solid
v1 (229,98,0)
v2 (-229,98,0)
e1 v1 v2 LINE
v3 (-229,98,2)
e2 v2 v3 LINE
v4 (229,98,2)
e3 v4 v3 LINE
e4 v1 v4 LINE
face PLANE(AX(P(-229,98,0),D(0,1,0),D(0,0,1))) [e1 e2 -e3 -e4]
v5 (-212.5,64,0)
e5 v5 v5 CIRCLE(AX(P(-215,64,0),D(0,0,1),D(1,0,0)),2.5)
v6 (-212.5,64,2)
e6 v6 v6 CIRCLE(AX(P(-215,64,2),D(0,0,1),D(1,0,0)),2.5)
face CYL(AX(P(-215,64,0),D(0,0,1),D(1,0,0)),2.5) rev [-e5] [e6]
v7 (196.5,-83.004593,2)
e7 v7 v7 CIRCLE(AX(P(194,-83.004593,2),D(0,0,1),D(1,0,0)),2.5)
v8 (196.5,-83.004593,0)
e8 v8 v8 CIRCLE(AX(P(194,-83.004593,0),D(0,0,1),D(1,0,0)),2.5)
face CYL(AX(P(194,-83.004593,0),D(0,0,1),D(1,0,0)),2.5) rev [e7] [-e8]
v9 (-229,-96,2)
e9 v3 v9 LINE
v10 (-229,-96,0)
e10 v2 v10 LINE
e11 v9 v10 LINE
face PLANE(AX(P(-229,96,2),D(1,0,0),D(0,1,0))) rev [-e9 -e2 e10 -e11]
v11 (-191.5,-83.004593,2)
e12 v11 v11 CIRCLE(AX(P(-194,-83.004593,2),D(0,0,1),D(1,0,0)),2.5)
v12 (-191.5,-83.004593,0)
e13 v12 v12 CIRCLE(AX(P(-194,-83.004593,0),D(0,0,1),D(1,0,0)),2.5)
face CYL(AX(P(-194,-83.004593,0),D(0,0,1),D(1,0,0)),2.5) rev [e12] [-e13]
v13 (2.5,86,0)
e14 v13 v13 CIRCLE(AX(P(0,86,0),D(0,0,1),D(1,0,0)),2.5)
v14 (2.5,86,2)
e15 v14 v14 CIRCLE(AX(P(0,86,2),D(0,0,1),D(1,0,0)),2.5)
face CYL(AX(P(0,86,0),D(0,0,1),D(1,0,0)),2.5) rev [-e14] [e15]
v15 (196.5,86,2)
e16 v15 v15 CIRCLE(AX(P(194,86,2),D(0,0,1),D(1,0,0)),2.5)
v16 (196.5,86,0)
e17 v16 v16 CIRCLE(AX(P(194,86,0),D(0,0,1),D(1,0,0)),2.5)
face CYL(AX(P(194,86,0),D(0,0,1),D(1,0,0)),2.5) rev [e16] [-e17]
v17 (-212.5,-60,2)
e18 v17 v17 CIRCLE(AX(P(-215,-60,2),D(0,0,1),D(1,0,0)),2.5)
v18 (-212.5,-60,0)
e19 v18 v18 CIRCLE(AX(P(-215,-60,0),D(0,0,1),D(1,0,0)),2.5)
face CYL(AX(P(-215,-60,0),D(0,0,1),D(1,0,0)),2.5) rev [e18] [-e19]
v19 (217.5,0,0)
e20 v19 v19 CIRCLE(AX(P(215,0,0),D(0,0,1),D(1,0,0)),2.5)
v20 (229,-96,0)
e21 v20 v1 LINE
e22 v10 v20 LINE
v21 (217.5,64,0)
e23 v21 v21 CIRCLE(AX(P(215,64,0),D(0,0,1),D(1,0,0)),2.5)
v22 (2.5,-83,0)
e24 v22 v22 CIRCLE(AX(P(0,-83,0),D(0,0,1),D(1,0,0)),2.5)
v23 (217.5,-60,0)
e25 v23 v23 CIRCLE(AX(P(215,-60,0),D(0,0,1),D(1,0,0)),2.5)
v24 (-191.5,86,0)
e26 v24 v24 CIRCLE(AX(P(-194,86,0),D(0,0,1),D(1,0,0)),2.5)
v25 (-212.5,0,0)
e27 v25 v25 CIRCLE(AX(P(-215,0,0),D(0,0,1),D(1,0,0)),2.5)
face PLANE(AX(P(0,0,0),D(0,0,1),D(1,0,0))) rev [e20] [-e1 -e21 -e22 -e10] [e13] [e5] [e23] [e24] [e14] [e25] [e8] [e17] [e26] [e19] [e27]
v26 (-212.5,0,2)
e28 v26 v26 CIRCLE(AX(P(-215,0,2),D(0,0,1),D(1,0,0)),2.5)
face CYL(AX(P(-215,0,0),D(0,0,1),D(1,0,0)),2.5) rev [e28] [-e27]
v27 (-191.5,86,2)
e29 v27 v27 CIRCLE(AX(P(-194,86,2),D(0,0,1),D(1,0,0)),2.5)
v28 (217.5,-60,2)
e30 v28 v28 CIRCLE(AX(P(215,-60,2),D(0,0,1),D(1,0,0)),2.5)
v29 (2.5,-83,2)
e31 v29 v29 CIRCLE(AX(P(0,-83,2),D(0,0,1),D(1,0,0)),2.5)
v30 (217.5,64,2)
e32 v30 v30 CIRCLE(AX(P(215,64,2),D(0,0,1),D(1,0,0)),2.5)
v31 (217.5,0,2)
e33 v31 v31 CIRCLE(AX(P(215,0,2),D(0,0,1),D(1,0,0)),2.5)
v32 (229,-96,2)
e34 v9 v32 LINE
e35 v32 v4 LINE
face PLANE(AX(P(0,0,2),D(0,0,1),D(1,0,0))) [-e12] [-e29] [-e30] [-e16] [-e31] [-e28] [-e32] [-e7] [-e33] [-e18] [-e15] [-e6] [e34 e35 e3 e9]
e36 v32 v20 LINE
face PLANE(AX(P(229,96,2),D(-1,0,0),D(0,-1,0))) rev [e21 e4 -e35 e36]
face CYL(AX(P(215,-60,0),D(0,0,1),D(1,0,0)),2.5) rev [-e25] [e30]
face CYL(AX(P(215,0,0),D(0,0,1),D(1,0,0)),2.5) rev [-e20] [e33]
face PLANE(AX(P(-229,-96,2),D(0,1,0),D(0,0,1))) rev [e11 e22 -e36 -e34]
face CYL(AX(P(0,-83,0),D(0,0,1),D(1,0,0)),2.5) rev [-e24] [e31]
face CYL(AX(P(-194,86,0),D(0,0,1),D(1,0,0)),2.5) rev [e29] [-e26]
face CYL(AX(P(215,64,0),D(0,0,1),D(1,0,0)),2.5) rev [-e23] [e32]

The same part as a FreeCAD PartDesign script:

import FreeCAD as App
import Part
import Sketcher
from FreeCAD import Vector
Q = App.Units.Quantity


def add_polygon(sketch, points):
    """Adds a closed chain of lines whose ends are joined by coincident constraints."""
    first, n = sketch.GeometryCount, len(points)
    for a, b in zip(points, points[1:] + points[:1]):
        sketch.addGeometry(Part.LineSegment(App.Vector(*a, 0), App.Vector(*b, 0)), False)
    for i in range(n):
        sketch.addConstraint(Sketcher.Constraint("Coincident", first + i, 2, first + (i + 1) % n, 1))

doc = App.newDocument("Part")
body = doc.addObject("PartDesign::Body", "Body")

sketch1 = doc.addObject("Sketcher::SketchObject", "Sketch")
body.addObject(sketch1)
sketch1.AttachmentSupport = (doc.XY_Plane, [""])
sketch1.MapMode = "FlatFace"
add_polygon(sketch1, [(-229, 96), (-229, -96), (229, -96), (229, 96)])
sketch1.addConstraint(Sketcher.Constraint("Vertical", 0))
sketch1.addConstraint(Sketcher.Constraint("Horizontal", 1))
sketch1.addConstraint(Sketcher.Constraint("Vertical", 2))
sketch1.addConstraint(Sketcher.Constraint("Horizontal", 3))
sketch1.addConstraint(Sketcher.Constraint("Symmetric", 0, 2, 2, 2, -1, 1))
sketch1.addConstraint(Sketcher.Constraint("DistanceX", 1, 1, 1, 2, Q("458 mm")))
sketch1.addConstraint(Sketcher.Constraint("DistanceY", 0, 2, 0, 1, Q("192 mm")))
pad1 = doc.addObject("PartDesign::Pad", "Pad")
body.addObject(pad1)
pad1.Profile = sketch1
pad1.Length = 2

sketch2 = doc.addObject("Sketcher::SketchObject", "Sketch001")
body.addObject(sketch2)
sketch2.AttachmentSupport = (doc.XY_Plane, [""])
sketch2.MapMode = "FlatFace"
sketch2.AttachmentOffset = App.Placement(Vector(0, 0, 2), App.Rotation())
sketch2.addGeometry(Part.Circle(Vector(-194, 86, 0), Vector(0, 0, 1), 2.5), False)
sketch2.addGeometry(Part.Circle(Vector(-194, -83, 0), Vector(0, 0, 1), 2.5), False)
sketch2.addGeometry(Part.Circle(Vector(194, -83, 0), Vector(0, 0, 1), 2.5), False)
sketch2.addGeometry(Part.Circle(Vector(194, 86, 0), Vector(0, 0, 1), 2.5), False)
sketch2.addGeometry(Part.Circle(Vector(-215, 0, 0), Vector(0, 0, 1), 2.5), False)
sketch2.addGeometry(Part.Circle(Vector(-215, -60, 0), Vector(0, 0, 1), 2.5), False)
sketch2.addGeometry(Part.Circle(Vector(-215, 64, 0), Vector(0, 0, 1), 2.5), False)
sketch2.addGeometry(Part.Circle(Vector(215, 0, 0), Vector(0, 0, 1), 2.5), False)
sketch2.addGeometry(Part.Circle(Vector(215, -60, 0), Vector(0, 0, 1), 2.5), False)
sketch2.addGeometry(Part.Circle(Vector(215, 64, 0), Vector(0, 0, 1), 2.5), False)
sketch2.addGeometry(Part.Circle(Vector(0, 86, 0), Vector(0, 0, 1), 2.5), False)
sketch2.addGeometry(Part.Circle(Vector(0, -83, 0), Vector(0, 0, 1), 2.5), False)
sketch2.addConstraint(Sketcher.Constraint("Equal", 0, 1))
sketch2.addConstraint(Sketcher.Constraint("Equal", 1, 2))
sketch2.addConstraint(Sketcher.Constraint("Equal", 2, 3))
sketch2.addConstraint(Sketcher.Constraint("Equal", 3, 4))
sketch2.addConstraint(Sketcher.Constraint("Equal", 4, 5))
sketch2.addConstraint(Sketcher.Constraint("Equal", 5, 6))
sketch2.addConstraint(Sketcher.Constraint("Equal", 6, 7))
sketch2.addConstraint(Sketcher.Constraint("Equal", 7, 8))
sketch2.addConstraint(Sketcher.Constraint("Equal", 8, 9))
sketch2.addConstraint(Sketcher.Constraint("Equal", 9, 10))
sketch2.addConstraint(Sketcher.Constraint("Equal", 10, 11))
sketch2.addConstraint(Sketcher.Constraint("Symmetric", 4, 3, 7, 3, -1, 1))
sketch2.addConstraint(Sketcher.Constraint("Symmetric", 1, 3, 2, 3, -2))
sketch2.addConstraint(Sketcher.Constraint("Symmetric", 0, 3, 3, 3, -2))
sketch2.addConstraint(Sketcher.Constraint("Symmetric", 5, 3, 8, 3, -2))
sketch2.addConstraint(Sketcher.Constraint("Symmetric", 6, 3, 9, 3, -2))
sketch2.addConstraint(Sketcher.Constraint("PointOnObject", 4, 3, -1))
sketch2.addConstraint(Sketcher.Constraint("PointOnObject", 10, 3, -2))
sketch2.addConstraint(Sketcher.Constraint("PointOnObject", 11, 3, -2))
sketch2.addConstraint(Sketcher.Constraint("Horizontal", 3, 3, 10, 3))
sketch2.addConstraint(Sketcher.Constraint("Vertical", 0, 3, 1, 3))
sketch2.addConstraint(Sketcher.Constraint("Vertical", 4, 3, 5, 3))
sketch2.addConstraint(Sketcher.Constraint("Vertical", 5, 3, 6, 3))
sketch2.addConstraint(Sketcher.Constraint("Diameter", 0, Q("5 mm")))
sketch2.addConstraint(Sketcher.Constraint("DistanceX", 0, 3, -1, 1, Q("194 mm")))
sketch2.addConstraint(Sketcher.Constraint("DistanceY", -1, 1, 0, 3, Q("86 mm")))
sketch2.addConstraint(Sketcher.Constraint("DistanceX", 4, 3, -1, 1, Q("215 mm")))
sketch2.addConstraint(Sketcher.Constraint("DistanceY", 5, 3, -1, 1, Q("60 mm")))
sketch2.addConstraint(Sketcher.Constraint("DistanceY", -1, 1, 6, 3, Q("64 mm")))
sketch2.addConstraint(Sketcher.Constraint("DistanceY", 11, 3, -1, 1, Q("83 mm")))
sketch2.addConstraint(Sketcher.Constraint("DistanceY", 1, 3, -1, 1, Q("83.004593 mm")))
pocket1 = doc.addObject("PartDesign::Pocket", "Pocket")
body.addObject(pocket1)
pocket1.Profile = sketch2
pocket1.Type = "ThroughAll"

sketch3 = doc.addObject("Sketcher::SketchObject", "Sketch002")
body.addObject(sketch3)
sketch3.AttachmentSupport = (doc.XY_Plane, [""])
sketch3.MapMode = "FlatFace"
sketch3.AttachmentOffset = App.Placement(Vector(0, 0, 2), App.Rotation())
add_polygon(sketch3, [(-229, 98), (-229, 96), (229, 96), (229, 98)])
sketch3.addConstraint(Sketcher.Constraint("Vertical", 0))
sketch3.addConstraint(Sketcher.Constraint("Horizontal", 1))
sketch3.addConstraint(Sketcher.Constraint("Vertical", 2))
sketch3.addConstraint(Sketcher.Constraint("Horizontal", 3))
sketch3.addConstraint(Sketcher.Constraint("DistanceX", 1, 1, 1, 2, Q("458 mm")))
sketch3.addConstraint(Sketcher.Constraint("DistanceY", 0, 2, 0, 1, Q("2 mm")))
sketch3.addConstraint(Sketcher.Constraint("DistanceX", 0, 2, -1, 1, Q("229 mm")))
sketch3.addConstraint(Sketcher.Constraint("DistanceY", -1, 1, 0, 2, Q("96 mm")))
pad2 = doc.addObject("PartDesign::Pad", "Pad001")
body.addObject(pad2)
pad2.Profile = sketch3
pad2.Length = 2
pad2.Reversed = True

doc.recompute()
